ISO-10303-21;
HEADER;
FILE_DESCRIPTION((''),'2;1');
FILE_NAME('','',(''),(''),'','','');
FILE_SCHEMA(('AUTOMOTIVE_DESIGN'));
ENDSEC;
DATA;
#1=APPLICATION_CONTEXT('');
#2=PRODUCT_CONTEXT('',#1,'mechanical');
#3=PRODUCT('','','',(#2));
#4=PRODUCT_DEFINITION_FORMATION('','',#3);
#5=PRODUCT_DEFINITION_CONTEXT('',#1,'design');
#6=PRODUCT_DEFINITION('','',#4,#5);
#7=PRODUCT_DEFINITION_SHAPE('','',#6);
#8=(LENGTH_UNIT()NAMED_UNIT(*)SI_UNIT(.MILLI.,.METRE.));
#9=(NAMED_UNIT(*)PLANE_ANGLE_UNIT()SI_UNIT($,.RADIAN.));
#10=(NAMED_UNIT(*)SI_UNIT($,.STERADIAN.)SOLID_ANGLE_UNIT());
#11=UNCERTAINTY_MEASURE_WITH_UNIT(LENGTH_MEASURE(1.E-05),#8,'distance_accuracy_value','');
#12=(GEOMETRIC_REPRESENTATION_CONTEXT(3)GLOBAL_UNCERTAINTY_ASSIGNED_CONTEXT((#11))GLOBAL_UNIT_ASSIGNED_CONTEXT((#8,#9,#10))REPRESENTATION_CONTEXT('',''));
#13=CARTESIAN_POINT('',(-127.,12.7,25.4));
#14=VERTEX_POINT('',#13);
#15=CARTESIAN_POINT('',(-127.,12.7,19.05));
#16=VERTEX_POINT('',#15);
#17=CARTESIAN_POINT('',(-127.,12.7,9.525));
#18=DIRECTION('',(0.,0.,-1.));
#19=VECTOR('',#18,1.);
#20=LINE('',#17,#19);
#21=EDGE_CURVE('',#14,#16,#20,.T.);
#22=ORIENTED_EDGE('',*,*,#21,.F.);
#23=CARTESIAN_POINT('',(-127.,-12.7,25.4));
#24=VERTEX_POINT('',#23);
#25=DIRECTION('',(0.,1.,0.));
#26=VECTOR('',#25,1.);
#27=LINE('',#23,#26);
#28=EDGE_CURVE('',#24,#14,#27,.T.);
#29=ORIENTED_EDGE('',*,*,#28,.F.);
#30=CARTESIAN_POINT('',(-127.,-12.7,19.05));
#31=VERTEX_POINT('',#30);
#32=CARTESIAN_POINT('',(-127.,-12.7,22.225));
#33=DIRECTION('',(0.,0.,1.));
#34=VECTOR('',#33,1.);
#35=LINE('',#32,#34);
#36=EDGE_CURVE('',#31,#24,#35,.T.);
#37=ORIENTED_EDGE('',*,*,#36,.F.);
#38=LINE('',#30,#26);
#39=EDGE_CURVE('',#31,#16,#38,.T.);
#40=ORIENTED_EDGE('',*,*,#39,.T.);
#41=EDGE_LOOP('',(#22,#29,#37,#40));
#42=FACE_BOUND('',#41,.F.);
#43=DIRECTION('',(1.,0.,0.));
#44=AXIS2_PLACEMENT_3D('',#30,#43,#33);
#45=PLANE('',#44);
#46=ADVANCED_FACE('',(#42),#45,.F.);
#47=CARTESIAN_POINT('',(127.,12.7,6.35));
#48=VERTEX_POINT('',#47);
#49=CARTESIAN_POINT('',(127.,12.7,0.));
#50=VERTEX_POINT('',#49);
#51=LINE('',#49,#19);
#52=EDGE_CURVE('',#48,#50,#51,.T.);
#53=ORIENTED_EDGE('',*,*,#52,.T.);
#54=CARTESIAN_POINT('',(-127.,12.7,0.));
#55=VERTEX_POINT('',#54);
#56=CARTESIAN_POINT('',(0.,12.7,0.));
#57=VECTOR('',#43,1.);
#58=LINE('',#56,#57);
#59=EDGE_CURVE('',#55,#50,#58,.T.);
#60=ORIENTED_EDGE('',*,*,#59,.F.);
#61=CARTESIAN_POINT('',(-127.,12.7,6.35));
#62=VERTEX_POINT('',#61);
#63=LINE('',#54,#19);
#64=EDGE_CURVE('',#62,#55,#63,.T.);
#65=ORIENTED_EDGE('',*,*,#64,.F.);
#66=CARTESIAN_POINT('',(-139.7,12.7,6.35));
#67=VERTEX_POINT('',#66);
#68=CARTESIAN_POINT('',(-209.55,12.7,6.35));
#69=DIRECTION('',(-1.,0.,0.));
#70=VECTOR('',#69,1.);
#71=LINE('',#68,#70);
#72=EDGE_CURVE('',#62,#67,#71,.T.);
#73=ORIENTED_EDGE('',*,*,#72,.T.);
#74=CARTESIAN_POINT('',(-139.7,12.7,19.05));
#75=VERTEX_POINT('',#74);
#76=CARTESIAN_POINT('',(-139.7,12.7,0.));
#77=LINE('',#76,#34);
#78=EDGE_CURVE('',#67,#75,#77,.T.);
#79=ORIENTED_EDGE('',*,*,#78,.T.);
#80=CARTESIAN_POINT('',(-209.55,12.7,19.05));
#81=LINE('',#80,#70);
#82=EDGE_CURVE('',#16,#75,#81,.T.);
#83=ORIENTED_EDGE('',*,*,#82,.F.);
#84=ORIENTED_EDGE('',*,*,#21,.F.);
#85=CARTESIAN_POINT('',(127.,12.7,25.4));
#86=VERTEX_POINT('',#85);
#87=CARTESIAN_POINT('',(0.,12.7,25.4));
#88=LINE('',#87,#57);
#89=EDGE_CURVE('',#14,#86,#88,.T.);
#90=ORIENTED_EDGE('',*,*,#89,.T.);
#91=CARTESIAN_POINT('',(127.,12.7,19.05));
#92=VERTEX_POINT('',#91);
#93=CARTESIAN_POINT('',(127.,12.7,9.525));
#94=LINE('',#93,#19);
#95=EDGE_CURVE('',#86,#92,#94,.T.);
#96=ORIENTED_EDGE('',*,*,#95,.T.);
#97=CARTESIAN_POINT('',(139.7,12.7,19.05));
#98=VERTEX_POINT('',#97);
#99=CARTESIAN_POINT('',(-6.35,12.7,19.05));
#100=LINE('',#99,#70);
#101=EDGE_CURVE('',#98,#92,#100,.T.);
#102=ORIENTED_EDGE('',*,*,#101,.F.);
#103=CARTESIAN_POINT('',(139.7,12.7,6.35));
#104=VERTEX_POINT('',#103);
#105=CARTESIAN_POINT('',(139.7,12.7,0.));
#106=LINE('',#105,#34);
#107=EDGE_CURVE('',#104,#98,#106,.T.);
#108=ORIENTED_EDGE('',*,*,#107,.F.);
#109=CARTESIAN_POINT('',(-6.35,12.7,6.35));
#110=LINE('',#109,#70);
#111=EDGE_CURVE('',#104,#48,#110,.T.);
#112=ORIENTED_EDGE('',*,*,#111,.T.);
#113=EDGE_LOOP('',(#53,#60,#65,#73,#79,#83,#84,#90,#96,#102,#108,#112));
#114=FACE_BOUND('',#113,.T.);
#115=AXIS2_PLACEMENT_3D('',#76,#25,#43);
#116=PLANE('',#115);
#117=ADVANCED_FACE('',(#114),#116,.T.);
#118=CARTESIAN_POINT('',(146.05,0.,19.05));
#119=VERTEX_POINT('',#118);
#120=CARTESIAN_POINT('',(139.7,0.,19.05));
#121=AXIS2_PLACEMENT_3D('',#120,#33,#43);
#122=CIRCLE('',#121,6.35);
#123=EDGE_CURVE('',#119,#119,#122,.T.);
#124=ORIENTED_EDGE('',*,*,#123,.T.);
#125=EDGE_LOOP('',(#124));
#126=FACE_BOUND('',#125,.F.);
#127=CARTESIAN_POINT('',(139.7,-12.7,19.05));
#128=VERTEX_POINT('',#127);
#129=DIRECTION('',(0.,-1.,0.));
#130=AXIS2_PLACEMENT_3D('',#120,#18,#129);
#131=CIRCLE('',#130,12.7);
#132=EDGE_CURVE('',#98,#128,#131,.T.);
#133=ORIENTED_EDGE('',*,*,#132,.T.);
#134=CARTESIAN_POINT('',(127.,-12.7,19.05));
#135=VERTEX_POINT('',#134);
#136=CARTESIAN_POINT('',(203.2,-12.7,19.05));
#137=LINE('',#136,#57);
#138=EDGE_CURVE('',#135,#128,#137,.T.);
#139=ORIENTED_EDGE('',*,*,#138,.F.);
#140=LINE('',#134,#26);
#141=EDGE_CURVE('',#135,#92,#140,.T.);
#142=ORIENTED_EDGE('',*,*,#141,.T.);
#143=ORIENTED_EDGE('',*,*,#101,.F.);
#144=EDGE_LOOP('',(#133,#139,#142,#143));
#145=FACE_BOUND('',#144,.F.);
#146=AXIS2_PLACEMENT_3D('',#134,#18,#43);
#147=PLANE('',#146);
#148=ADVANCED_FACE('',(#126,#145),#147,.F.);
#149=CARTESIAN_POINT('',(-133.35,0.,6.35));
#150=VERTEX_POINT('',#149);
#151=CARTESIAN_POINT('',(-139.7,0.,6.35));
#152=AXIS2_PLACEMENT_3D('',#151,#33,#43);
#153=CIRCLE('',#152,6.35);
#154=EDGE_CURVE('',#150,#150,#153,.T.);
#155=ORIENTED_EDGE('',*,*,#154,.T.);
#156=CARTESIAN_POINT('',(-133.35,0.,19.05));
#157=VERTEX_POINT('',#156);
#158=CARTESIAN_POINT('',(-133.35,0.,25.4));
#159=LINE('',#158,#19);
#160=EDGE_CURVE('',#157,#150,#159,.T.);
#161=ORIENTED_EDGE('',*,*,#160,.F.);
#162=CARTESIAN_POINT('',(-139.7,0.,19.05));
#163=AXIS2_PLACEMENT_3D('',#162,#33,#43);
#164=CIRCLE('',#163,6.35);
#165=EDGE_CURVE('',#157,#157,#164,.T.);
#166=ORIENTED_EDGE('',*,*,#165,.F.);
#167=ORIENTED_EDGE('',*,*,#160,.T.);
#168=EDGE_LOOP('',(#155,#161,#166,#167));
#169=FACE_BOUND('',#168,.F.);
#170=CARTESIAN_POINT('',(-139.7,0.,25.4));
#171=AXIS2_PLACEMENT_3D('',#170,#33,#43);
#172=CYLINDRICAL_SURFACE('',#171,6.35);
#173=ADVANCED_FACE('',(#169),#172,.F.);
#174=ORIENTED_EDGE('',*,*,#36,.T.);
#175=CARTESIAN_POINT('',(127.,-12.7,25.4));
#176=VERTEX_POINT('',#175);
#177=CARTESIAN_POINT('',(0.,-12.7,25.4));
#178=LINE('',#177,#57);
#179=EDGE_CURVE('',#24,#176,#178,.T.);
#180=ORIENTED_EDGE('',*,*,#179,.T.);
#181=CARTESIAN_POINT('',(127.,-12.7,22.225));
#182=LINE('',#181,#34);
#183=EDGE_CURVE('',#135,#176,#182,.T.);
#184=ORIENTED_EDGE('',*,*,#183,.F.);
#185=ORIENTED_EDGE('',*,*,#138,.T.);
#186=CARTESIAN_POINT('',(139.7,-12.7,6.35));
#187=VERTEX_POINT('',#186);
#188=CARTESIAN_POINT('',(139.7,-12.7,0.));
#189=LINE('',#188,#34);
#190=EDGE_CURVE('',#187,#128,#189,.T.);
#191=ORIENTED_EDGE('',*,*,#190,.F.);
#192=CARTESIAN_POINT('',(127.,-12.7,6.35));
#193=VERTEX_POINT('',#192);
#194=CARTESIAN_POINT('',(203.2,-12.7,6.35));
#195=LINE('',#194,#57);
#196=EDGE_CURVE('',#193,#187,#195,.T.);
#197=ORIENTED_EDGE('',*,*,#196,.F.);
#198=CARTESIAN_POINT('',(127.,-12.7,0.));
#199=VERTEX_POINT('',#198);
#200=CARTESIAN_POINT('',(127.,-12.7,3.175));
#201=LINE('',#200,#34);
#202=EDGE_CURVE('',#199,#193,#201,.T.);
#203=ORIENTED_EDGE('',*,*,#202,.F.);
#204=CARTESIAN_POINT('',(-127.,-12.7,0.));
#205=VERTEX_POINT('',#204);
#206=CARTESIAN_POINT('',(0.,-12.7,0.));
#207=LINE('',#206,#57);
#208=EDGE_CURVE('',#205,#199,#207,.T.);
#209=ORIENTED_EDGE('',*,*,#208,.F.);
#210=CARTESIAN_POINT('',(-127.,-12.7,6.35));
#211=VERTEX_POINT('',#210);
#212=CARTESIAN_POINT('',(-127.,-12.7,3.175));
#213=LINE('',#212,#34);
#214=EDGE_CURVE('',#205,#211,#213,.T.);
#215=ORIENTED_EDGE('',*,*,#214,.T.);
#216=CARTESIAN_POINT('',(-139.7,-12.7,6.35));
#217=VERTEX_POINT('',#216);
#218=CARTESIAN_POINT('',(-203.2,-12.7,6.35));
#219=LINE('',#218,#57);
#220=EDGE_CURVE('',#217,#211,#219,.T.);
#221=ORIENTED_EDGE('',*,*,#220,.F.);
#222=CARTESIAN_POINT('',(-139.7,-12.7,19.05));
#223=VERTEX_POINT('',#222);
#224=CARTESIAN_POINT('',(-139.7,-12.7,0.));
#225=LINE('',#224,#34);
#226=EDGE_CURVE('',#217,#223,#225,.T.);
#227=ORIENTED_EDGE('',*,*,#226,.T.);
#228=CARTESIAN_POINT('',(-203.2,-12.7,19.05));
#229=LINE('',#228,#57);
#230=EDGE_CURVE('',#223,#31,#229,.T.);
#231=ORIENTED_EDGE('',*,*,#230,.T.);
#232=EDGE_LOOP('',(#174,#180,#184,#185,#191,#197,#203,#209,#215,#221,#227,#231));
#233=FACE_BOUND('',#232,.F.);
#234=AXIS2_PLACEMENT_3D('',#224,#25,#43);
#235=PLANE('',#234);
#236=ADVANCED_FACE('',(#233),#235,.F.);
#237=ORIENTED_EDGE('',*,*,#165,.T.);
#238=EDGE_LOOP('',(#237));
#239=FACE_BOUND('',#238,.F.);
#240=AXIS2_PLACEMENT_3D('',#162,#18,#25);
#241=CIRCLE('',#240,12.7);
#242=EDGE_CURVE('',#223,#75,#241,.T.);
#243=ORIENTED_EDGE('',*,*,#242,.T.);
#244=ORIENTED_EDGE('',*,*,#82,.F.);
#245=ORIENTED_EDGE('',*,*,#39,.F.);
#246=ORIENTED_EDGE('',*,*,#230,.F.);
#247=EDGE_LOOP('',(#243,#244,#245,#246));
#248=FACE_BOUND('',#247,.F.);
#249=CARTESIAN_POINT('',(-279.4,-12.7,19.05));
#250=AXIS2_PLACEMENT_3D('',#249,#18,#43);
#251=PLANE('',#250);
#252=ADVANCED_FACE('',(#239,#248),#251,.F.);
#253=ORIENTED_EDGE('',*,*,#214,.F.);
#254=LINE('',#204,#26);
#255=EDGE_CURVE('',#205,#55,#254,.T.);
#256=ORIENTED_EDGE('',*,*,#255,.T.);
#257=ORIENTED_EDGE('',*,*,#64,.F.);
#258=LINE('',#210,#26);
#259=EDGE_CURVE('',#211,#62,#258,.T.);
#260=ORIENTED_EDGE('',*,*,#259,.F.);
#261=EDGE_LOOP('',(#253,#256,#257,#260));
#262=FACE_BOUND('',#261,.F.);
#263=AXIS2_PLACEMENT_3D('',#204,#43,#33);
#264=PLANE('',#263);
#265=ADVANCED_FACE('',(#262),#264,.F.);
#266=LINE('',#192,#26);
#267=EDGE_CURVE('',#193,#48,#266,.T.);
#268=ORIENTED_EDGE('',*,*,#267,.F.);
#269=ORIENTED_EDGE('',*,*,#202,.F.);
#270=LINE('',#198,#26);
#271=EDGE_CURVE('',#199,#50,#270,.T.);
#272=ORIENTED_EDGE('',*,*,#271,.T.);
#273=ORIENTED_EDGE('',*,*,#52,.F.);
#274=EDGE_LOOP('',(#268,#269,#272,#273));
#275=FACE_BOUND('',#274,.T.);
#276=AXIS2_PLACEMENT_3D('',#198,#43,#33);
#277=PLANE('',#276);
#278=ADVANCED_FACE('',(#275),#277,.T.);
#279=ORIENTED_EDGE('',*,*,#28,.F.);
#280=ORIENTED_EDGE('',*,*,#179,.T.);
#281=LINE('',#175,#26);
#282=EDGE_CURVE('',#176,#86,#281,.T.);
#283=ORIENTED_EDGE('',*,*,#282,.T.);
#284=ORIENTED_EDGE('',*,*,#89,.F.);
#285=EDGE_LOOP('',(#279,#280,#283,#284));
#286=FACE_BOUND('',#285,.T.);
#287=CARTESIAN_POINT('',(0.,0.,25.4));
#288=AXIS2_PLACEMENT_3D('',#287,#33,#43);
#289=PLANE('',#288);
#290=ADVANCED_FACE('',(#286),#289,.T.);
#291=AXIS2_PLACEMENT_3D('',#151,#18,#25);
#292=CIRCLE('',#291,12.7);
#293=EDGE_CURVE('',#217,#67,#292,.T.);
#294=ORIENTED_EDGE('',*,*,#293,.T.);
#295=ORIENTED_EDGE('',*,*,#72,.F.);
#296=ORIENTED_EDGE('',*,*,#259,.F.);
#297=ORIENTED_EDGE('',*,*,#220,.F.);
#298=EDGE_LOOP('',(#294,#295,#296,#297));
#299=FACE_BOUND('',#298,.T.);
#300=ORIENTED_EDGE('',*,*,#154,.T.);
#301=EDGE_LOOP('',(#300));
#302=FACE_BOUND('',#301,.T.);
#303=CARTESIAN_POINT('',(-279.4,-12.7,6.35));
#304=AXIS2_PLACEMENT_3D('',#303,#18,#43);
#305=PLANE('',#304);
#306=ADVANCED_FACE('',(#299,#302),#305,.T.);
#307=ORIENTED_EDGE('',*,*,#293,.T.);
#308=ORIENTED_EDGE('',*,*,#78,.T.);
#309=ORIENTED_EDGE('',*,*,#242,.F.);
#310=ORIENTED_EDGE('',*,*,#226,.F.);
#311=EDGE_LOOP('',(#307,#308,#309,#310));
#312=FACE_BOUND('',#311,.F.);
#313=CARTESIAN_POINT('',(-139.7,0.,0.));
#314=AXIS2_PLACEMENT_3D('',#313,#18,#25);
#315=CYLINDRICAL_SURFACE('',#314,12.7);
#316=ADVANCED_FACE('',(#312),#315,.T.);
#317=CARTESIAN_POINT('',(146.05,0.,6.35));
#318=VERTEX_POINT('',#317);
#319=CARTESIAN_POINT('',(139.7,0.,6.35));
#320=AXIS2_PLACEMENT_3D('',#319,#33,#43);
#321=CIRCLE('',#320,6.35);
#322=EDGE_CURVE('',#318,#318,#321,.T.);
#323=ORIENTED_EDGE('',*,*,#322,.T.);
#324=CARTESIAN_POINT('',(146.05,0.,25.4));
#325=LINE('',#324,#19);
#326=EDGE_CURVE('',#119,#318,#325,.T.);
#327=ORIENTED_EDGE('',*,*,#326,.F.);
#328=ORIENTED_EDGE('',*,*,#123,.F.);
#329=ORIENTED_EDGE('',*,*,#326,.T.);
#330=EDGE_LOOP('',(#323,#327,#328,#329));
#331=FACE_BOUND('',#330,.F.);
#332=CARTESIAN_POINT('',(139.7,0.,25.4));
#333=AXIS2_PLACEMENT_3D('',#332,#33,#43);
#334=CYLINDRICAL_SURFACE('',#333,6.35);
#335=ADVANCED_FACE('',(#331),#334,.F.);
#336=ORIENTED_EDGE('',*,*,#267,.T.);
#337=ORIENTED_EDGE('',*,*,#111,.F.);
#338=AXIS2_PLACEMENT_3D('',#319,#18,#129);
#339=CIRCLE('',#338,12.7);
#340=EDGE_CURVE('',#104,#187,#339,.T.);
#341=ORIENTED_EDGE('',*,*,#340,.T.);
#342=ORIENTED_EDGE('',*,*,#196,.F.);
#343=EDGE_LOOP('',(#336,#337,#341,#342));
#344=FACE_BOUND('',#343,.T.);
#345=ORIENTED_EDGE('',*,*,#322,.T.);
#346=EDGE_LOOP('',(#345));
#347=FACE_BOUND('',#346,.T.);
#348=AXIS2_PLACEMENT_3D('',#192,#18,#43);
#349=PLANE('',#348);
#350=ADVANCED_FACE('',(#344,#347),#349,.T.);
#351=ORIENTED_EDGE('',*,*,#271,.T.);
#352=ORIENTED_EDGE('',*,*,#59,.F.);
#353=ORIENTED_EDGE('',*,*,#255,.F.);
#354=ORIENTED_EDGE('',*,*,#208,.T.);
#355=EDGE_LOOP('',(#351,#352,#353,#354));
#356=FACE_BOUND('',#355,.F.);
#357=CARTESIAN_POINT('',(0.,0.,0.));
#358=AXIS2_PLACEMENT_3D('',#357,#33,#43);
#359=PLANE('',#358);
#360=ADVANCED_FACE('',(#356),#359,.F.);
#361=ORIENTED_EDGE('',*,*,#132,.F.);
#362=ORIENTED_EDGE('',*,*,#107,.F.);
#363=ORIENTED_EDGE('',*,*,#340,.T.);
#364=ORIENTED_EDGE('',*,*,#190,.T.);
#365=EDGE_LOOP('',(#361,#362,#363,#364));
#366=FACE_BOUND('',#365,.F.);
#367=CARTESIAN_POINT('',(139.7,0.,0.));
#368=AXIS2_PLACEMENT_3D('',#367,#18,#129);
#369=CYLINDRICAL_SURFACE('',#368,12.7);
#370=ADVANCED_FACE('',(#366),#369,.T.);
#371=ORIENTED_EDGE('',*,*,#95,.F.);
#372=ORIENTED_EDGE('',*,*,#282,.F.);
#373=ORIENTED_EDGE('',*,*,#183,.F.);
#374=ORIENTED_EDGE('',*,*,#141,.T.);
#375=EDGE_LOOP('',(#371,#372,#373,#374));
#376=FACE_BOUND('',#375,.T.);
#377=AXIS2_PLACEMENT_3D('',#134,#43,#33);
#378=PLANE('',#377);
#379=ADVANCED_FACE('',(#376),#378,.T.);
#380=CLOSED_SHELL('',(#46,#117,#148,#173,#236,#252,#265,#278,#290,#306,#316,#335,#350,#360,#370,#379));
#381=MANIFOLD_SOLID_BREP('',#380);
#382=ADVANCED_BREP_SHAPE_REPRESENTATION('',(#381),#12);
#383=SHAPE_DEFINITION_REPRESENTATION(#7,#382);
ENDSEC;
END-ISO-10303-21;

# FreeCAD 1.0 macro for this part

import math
import FreeCAD as App
import Part
import Sketcher
from FreeCAD import Vector
Q = App.Units.Quantity

doc = App.newDocument("Part")
body = doc.addObject("PartDesign::Body", "Body")

# Sketch on XY plane
sketch1 = body.newObject("Sketcher::SketchObject", "Sketch")
sketch1.AttachmentSupport = (doc.getObject("XY_Plane"), [""])
sketch1.MapMode = "FlatFace"
sketch1.addGeometry([
    Part.LineSegment(Vector(-140, -13, 0), Vector(140, -13, 0)),
    Part.ArcOfCircle(Part.Circle(Vector(140, 0, 0), Vector(0, 0, 1), 13), math.radians(-90), math.radians(90)),
    Part.LineSegment(Vector(140, 13, 0), Vector(-140, 13, 0)),
    Part.ArcOfCircle(Part.Circle(Vector(-140, 0, 0), Vector(0, 0, 1), 13), math.radians(90), math.radians(270)),
], False)
sketch1.addConstraint([
    Sketcher.Constraint("Tangent", 0, 2, 1, 1),
    Sketcher.Constraint("Tangent", 1, 2, 2, 1),
    Sketcher.Constraint("Tangent", 2, 2, 3, 1),
    Sketcher.Constraint("Tangent", 3, 2, 0, 1),
    Sketcher.Constraint("Horizontal", 0),
    Sketcher.Constraint("Horizontal", 2),
    Sketcher.Constraint("Symmetric", 1, 3, 3, 3, -1, 1),
    Sketcher.Constraint("Radius", 1, Q("0.5 in")),
    Sketcher.Constraint("DistanceX", 0, 1, 0, 2, Q("11 in")),
])
pad1 = body.newObject("PartDesign::Pad", "Pad")
pad1.Profile = sketch1
pad1.Length = Q("1 in")

# Sketch on XY plane
sketch2 = body.newObject("Sketcher::SketchObject", "Sketch001")
sketch2.AttachmentSupport = (doc.getObject("XY_Plane"), [""])
sketch2.MapMode = "FlatFace"
sketch2.AttachmentOffset = App.Placement(Vector(0, 0, 1 * 25.4), App.Rotation())
sketch2.addGeometry([
    Part.Circle(Vector(-140, 0, 0), Vector(0, 0, 1), 6),
    Part.Circle(Vector(140, 0, 0), Vector(0, 0, 1), 6),
], False)
sketch2.addConstraint([
    Sketcher.Constraint("Equal", 0, 1),
    Sketcher.Constraint("Symmetric", 0, 3, 1, 3, -1, 1),
    Sketcher.Constraint("PointOnObject", 0, 3, -1),
    Sketcher.Constraint("Diameter", 0, Q("0.5 in")),
    Sketcher.Constraint("DistanceX", 0, 3, 1, 3, Q("11 in")),
])
pocket1 = body.newObject("PartDesign::Pocket", "Pocket")
pocket1.Profile = sketch2
pocket1.Type = "ThroughAll"

# Sketch on XZ plane
sketch3 = body.newObject("Sketcher::SketchObject", "Sketch002")
sketch3.AttachmentSupport = (doc.getObject("XZ_Plane"), [""])
sketch3.MapMode = "FlatFace"
sketch3.AttachmentOffset = App.Placement(Vector(0, 0, 0.5 * 25.4), App.Rotation())
sketch3.addGeometry([
    Part.LineSegment(Vector(-279, 25, 0), Vector(-279, 19, 0)),  # 0
    Part.LineSegment(Vector(-279, 19, 0), Vector(-127, 19, 0)),  # 1
    Part.LineSegment(Vector(-127, 19, 0), Vector(-127, 25, 0)),  # 2
    Part.LineSegment(Vector(-127, 25, 0), Vector(-279, 25, 0)),  # 3
    Part.LineSegment(Vector(-279, 6, 0), Vector(-279, 0, 0)),  # 4
    Part.LineSegment(Vector(-279, 0, 0), Vector(-127, 0, 0)),  # 5
    Part.LineSegment(Vector(-127, 0, 0), Vector(-127, 6, 0)),  # 6
    Part.LineSegment(Vector(-127, 6, 0), Vector(-279, 6, 0)),  # 7
    Part.LineSegment(Vector(127, 25, 0), Vector(127, 19, 0)),  # 8
    Part.LineSegment(Vector(127, 19, 0), Vector(279, 19, 0)),  # 9
    Part.LineSegment(Vector(279, 19, 0), Vector(279, 25, 0)),  # 10
    Part.LineSegment(Vector(279, 25, 0), Vector(127, 25, 0)),  # 11
    Part.LineSegment(Vector(127, 6, 0), Vector(127, 0, 0)),  # 12
    Part.LineSegment(Vector(127, 0, 0), Vector(279, 0, 0)),  # 13
    Part.LineSegment(Vector(279, 0, 0), Vector(279, 6, 0)),  # 14
    Part.LineSegment(Vector(279, 6, 0), Vector(127, 6, 0)),  # 15
], False)
sketch3.addConstraint([
    Sketcher.Constraint("Coincident", 0, 2, 1, 1),
    Sketcher.Constraint("Coincident", 1, 2, 2, 1),
    Sketcher.Constraint("Coincident", 2, 2, 3, 1),
    Sketcher.Constraint("Coincident", 3, 2, 0, 1),
    Sketcher.Constraint("Coincident", 4, 2, 5, 1),
    Sketcher.Constraint("Coincident", 5, 2, 6, 1),
    Sketcher.Constraint("Coincident", 6, 2, 7, 1),
    Sketcher.Constraint("Coincident", 7, 2, 4, 1),
    Sketcher.Constraint("Coincident", 8, 2, 9, 1),
    Sketcher.Constraint("Coincident", 9, 2, 10, 1),
    Sketcher.Constraint("Coincident", 10, 2, 11, 1),
    Sketcher.Constraint("Coincident", 11, 2, 8, 1),
    Sketcher.Constraint("Coincident", 12, 2, 13, 1),
    Sketcher.Constraint("Coincident", 13, 2, 14, 1),
    Sketcher.Constraint("Coincident", 14, 2, 15, 1),
    Sketcher.Constraint("Coincident", 15, 2, 12, 1),
    Sketcher.Constraint("Vertical", 0),
    Sketcher.Constraint("Horizontal", 1),
    Sketcher.Constraint("Vertical", 2),
    Sketcher.Constraint("Horizontal", 3),
    Sketcher.Constraint("Vertical", 4),
    Sketcher.Constraint("Horizontal", 5),
    Sketcher.Constraint("Vertical", 6),
    Sketcher.Constraint("Horizontal", 7),
    Sketcher.Constraint("Vertical", 8),
    Sketcher.Constraint("Horizontal", 9),
    Sketcher.Constraint("Vertical", 10),
    Sketcher.Constraint("Horizontal", 11),
    Sketcher.Constraint("Vertical", 12),
    Sketcher.Constraint("Horizontal", 13),
    Sketcher.Constraint("Vertical", 14),
    Sketcher.Constraint("Horizontal", 15),
    Sketcher.Constraint("Symmetric", 5, 2, 12, 2, -1, 1),
    Sketcher.Constraint("Symmetric", 1, 2, 8, 2, -2),
    Sketcher.Constraint("Symmetric", 3, 2, 10, 2, -2),
    Sketcher.Constraint("Symmetric", 4, 2, 13, 2, -2),
    Sketcher.Constraint("Horizontal", 7, 2, 14, 2),
    Sketcher.Constraint("Vertical", 3, 2, 4, 2),
    Sketcher.Constraint("Vertical", 2, 2, 5, 2),
    Sketcher.Constraint("Equal", 2, 4),
    Sketcher.Constraint("DistanceX", 1, 1, 1, 2, Q("6 in")),
    Sketcher.Constraint("DistanceX", 0, 2, -1, 1, Q("11 in")),
    Sketcher.Constraint("DistanceY", -1, 1, 2, 2, Q("1 in")),
    Sketcher.Constraint("DistanceY", 0, 2, 0, 1, Q("0.25 in")),
])
pocket2 = body.newObject("PartDesign::Pocket", "Pocket001")
pocket2.Profile = sketch3
pocket2.Type = "ThroughAll"

doc.recompute()
